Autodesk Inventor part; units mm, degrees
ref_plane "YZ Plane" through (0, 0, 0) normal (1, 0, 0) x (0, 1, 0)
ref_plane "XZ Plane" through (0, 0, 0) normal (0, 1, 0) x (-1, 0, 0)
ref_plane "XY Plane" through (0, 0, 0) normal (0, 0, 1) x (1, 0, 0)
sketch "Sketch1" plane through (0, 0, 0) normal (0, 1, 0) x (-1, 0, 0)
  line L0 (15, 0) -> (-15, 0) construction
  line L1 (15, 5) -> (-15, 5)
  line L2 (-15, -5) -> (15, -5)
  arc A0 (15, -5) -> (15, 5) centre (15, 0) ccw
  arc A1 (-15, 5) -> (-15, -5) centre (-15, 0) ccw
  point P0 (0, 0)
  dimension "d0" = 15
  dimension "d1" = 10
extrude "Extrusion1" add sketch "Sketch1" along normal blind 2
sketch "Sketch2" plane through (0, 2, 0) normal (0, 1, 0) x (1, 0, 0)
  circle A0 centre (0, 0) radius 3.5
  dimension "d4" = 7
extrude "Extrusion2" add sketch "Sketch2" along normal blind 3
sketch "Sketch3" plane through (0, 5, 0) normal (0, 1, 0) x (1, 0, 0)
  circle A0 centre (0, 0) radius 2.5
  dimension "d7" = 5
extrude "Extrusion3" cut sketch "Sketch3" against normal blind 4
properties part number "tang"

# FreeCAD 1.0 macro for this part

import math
import FreeCAD as App
import Part
import Sketcher
Q = App.Units.Quantity

doc = App.newDocument("Part")
params = doc.addObject("Spreadsheet::Sheet", "Params")
for row, (alias, value) in enumerate([
    ("sketch1_radius", "5 mm"),
    ("pad1_length", "2 mm"),
    ("sketch2_diameter", "7 mm"),
    ("pad2_length", "3 mm"),
    ("sketch3_diameter", "5 mm"),
    ("pocket1_length", "4 mm"),
], start=1):
    params.set(f"A{row}", alias)
    params.set(f"B{row}", "=" + value)
    params.setAlias(f"B{row}", alias)

body = doc.addObject("PartDesign::Body", "Body")

sketch1 = doc.addObject("Sketcher::SketchObject", "Sketch")
body.addObject(sketch1)
sketch1.AttachmentSupport = (doc.XZ_Plane, [""])
sketch1.MapMode = "FlatFace"
sketch1.addGeometry([
    Part.ArcOfCircle(Part.Circle(App.Vector(-15, 0, 0), App.Vector(0, 0, 1), 5), math.radians(90), math.radians(270)),
    Part.LineSegment(App.Vector(-15, 5, 0), App.Vector(15, 5, 0)),
    Part.ArcOfCircle(Part.Circle(App.Vector(15, 0, 0), App.Vector(0, 0, 1), 5), math.radians(-90), math.radians(90)),
    Part.LineSegment(App.Vector(15, -5, 0), App.Vector(-15, -5, 0)),
], False)
sketch1.addConstraint([
    Sketcher.Constraint("Tangent", 0, 1, 1, 1),
    Sketcher.Constraint("Tangent", 1, 2, 2, 2),
    Sketcher.Constraint("Tangent", 2, 1, 3, 1),
    Sketcher.Constraint("Tangent", 3, 2, 0, 2),
    Sketcher.Constraint("Horizontal", 1),
    Sketcher.Constraint("Horizontal", 3),
    Sketcher.Constraint("Symmetric", 0, 3, 2, 3, -1, 1),
    Sketcher.Constraint("Radius", 0, Q("5 mm")),
    Sketcher.Constraint("DistanceX", 0, 3, -1, 1, Q("15 mm")),
])
sketch1.setExpression("Constraints[7]", "Params.sketch1_radius")
pad1 = doc.addObject("PartDesign::Pad", "Pad")
body.addObject(pad1)
pad1.Profile = sketch1
pad1.setExpression("Length", "Params.pad1_length")
pad1.Reversed = True

sketch2 = doc.addObject("Sketcher::SketchObject", "Sketch001")
body.addObject(sketch2)
sketch2.AttachmentSupport = (doc.XZ_Plane, [""])
sketch2.MapMode = "FlatFace"
sketch2.AttachmentOffset = App.Placement(App.Vector(0, 0, -2), App.Rotation())
sketch2.addGeometry(Part.Circle(App.Vector(0, 0, 0), App.Vector(0, 0, 1), 3.5), False)
sketch2.addConstraint([
    Sketcher.Constraint("Coincident", 0, 3, -1, 1),
    Sketcher.Constraint("Diameter", 0, Q("7 mm")),
])
sketch2.setExpression("Constraints[1]", "Params.sketch2_diameter")
pad2 = doc.addObject("PartDesign::Pad", "Pad001")
body.addObject(pad2)
pad2.Profile = sketch2
pad2.setExpression("Length", "Params.pad2_length")
pad2.Reversed = True

sketch3 = doc.addObject("Sketcher::SketchObject", "Sketch002")
body.addObject(sketch3)
sketch3.AttachmentSupport = (doc.XZ_Plane, [""])
sketch3.MapMode = "FlatFace"
sketch3.AttachmentOffset = App.Placement(App.Vector(0, 0, -5), App.Rotation())
sketch3.addGeometry(Part.Circle(App.Vector(0, 0, 0), App.Vector(0, 0, 1), 2.5), False)
sketch3.addConstraint([
    Sketcher.Constraint("Coincident", 0, 3, -1, 1),
    Sketcher.Constraint("Diameter", 0, Q("5 mm")),
])
sketch3.setExpression("Constraints[1]", "Params.sketch3_diameter")
pocket1 = doc.addObject("PartDesign::Pocket", "Pocket")
body.addObject(pocket1)
pocket1.Profile = sketch3
pocket1.setExpression("Length", "Params.pocket1_length")
pocket1.Reversed = True

doc.recompute()
